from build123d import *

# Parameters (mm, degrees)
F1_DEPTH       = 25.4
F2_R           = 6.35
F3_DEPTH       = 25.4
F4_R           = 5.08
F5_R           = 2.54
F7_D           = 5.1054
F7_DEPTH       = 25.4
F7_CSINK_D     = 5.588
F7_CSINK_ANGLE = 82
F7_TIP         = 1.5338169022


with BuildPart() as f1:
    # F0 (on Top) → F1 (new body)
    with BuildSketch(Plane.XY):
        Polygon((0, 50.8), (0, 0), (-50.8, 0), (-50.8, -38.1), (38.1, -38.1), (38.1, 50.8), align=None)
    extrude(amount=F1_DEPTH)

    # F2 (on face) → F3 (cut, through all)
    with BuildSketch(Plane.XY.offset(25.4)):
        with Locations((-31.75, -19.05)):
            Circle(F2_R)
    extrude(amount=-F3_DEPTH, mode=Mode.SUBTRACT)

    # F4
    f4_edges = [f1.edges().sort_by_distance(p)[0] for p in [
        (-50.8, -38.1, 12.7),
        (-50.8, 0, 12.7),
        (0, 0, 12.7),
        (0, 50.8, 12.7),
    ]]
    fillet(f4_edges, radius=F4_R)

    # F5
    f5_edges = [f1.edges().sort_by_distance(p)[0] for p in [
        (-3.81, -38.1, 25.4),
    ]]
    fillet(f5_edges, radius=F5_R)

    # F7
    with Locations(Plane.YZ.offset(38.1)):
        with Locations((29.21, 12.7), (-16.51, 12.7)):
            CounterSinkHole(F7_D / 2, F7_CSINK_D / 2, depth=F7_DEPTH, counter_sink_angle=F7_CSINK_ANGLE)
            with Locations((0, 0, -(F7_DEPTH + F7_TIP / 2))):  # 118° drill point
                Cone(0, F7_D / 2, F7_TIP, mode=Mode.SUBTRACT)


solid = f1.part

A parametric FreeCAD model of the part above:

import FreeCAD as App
import Part
import Sketcher

V = App.Vector
Q = App.Units.Quantity


def edges_at(feature, points):
    """Names of the edges that pass closest to the given points."""
    edges = feature.Shape.Edges
    near = lambda p: min(range(len(edges)), key=lambda i: edges[i].distToShape(Part.Vertex(*p))[0])
    return sorted({f"Edge{near(p) + 1}" for p in points})

doc = App.newDocument("Part")
body = doc.addObject("PartDesign::Body", "Body")

sketch1 = body.newObject("Sketcher::SketchObject", "Sketch")
sketch1.AttachmentSupport = (doc.getObject("XY_Plane"), [""])
sketch1.MapMode = "FlatFace"
sketch1.addGeometry([
    Part.LineSegment(V(0, 51, 0), V(0, 0, 0)),
    Part.LineSegment(V(0, 0, 0), V(-51, 0, 0)),
    Part.LineSegment(V(-51, 0, 0), V(-51, -38, 0)),
    Part.LineSegment(V(-51, -38, 0), V(38, -38, 0)),
    Part.LineSegment(V(38, -38, 0), V(38, 51, 0)),
    Part.LineSegment(V(38, 51, 0), V(0, 51, 0)),
], False)
sketch1.addConstraint([
    Sketcher.Constraint("Coincident", 0, 2, 1, 1),
    Sketcher.Constraint("Coincident", 1, 2, 2, 1),
    Sketcher.Constraint("Coincident", 2, 2, 3, 1),
    Sketcher.Constraint("Coincident", 3, 2, 4, 1),
    Sketcher.Constraint("Coincident", 4, 2, 5, 1),
    Sketcher.Constraint("Coincident", 5, 2, 0, 1),
    Sketcher.Constraint("Vertical", 0),
    Sketcher.Constraint("Horizontal", 1),
    Sketcher.Constraint("Vertical", 2),
    Sketcher.Constraint("Horizontal", 3),
    Sketcher.Constraint("Vertical", 4),
    Sketcher.Constraint("Horizontal", 5),
    Sketcher.Constraint("Coincident", 0, 2, -1, 1),
    Sketcher.Constraint("Equal", 1, 0),
    Sketcher.Constraint("Equal", 5, 2),
    Sketcher.Constraint("DistanceX", 1, 2, 1, 1, Q("2 in")),
    Sketcher.Constraint("DistanceX", 3, 1, 3, 2, Q("3.5 in")),
])
pad1 = body.newObject("PartDesign::Pad", "Pad")
pad1.Profile = sketch1
pad1.Length = Q("1 in")

sketch2 = body.newObject("Sketcher::SketchObject", "Sketch001")
sketch2.AttachmentSupport = (doc.getObject("XY_Plane"), [""])
sketch2.MapMode = "FlatFace"
sketch2.AttachmentOffset = App.Placement(V(0, 0, 1 * 25.4), App.Rotation())
sketch2.addGeometry(Part.Circle(V(-32, -19, 0), V(0, 0, 1), 6), False)
sketch2.addConstraint([
    Sketcher.Constraint("Diameter", 0, Q("0.5 in")),
    Sketcher.Constraint("DistanceX", 0, 3, -1, 1, Q("1.25 in")),
    Sketcher.Constraint("DistanceY", 0, 3, -1, 1, Q("0.75 in")),
])
pocket1 = body.newObject("PartDesign::Pocket", "Pocket")
pocket1.Profile = sketch2
pocket1.Type = "ThroughAll"
doc.recompute()

fillet = body.newObject("PartDesign::Fillet", "Fillet")
fillet.Base = (pocket1, edges_at(pocket1, [
    (-50.8, -38.1, 12.7),
    (-50.8, 0, 12.7),
    (0, 0, 12.7),
    (0, 50.8, 12.7),
]))
fillet.Radius = Q("0.2 in")
doc.recompute()

fillet2 = body.newObject("PartDesign::Fillet", "Fillet001")
fillet2.Base = (fillet, edges_at(fillet, [(-3.81, -38.1, 25.4)]))
fillet2.Radius = Q("0.1 in")

sketch3 = body.newObject("Sketcher::SketchObject", "Sketch002")
sketch3.AttachmentSupport = (doc.getObject("YZ_Plane"), [""])
sketch3.MapMode = "FlatFace"
sketch3.AttachmentOffset = App.Placement(V(0, 0, 1.5 * 25.4), App.Rotation())
sketch3.addGeometry([
    Part.Circle(V(29.2, 12.7, 0), V(0, 0, 1), 2.6),
    Part.Circle(V(-16.5, 12.7, 0), V(0, 0, 1), 2.6),
], False)
sketch3.addConstraint([
    Sketcher.Constraint("Equal", 0, 1),
    Sketcher.Constraint("Horizontal", 0, 3, 1, 3),
    Sketcher.Constraint("Diameter", 0, Q("0.201 in")),
    Sketcher.Constraint("DistanceY", -1, 1, 0, 3, Q("0.5 in")),
    Sketcher.Constraint("DistanceX", 1, 3, 0, 3, Q("1.8 in")),
    Sketcher.Constraint("DistanceX", -1, 1, 0, 3, Q("1.15 in")),
])
doc.recompute()
hole = body.newObject("PartDesign::Hole", "Hole")
hole.Profile = sketch3
hole.ThreadType = "None"
hole.Diameter = Q("0.201 in")
hole.DepthType = "Dimension"
hole.Depth = Q("1 in")
hole.DrillPoint = "Angled"
hole.DrillPointAngle = 118
hole.HoleCutType = "Countersink"
hole.HoleCutDiameter = Q("0.22 in")
hole.HoleCutCountersinkAngle = 82

doc.recompute()
